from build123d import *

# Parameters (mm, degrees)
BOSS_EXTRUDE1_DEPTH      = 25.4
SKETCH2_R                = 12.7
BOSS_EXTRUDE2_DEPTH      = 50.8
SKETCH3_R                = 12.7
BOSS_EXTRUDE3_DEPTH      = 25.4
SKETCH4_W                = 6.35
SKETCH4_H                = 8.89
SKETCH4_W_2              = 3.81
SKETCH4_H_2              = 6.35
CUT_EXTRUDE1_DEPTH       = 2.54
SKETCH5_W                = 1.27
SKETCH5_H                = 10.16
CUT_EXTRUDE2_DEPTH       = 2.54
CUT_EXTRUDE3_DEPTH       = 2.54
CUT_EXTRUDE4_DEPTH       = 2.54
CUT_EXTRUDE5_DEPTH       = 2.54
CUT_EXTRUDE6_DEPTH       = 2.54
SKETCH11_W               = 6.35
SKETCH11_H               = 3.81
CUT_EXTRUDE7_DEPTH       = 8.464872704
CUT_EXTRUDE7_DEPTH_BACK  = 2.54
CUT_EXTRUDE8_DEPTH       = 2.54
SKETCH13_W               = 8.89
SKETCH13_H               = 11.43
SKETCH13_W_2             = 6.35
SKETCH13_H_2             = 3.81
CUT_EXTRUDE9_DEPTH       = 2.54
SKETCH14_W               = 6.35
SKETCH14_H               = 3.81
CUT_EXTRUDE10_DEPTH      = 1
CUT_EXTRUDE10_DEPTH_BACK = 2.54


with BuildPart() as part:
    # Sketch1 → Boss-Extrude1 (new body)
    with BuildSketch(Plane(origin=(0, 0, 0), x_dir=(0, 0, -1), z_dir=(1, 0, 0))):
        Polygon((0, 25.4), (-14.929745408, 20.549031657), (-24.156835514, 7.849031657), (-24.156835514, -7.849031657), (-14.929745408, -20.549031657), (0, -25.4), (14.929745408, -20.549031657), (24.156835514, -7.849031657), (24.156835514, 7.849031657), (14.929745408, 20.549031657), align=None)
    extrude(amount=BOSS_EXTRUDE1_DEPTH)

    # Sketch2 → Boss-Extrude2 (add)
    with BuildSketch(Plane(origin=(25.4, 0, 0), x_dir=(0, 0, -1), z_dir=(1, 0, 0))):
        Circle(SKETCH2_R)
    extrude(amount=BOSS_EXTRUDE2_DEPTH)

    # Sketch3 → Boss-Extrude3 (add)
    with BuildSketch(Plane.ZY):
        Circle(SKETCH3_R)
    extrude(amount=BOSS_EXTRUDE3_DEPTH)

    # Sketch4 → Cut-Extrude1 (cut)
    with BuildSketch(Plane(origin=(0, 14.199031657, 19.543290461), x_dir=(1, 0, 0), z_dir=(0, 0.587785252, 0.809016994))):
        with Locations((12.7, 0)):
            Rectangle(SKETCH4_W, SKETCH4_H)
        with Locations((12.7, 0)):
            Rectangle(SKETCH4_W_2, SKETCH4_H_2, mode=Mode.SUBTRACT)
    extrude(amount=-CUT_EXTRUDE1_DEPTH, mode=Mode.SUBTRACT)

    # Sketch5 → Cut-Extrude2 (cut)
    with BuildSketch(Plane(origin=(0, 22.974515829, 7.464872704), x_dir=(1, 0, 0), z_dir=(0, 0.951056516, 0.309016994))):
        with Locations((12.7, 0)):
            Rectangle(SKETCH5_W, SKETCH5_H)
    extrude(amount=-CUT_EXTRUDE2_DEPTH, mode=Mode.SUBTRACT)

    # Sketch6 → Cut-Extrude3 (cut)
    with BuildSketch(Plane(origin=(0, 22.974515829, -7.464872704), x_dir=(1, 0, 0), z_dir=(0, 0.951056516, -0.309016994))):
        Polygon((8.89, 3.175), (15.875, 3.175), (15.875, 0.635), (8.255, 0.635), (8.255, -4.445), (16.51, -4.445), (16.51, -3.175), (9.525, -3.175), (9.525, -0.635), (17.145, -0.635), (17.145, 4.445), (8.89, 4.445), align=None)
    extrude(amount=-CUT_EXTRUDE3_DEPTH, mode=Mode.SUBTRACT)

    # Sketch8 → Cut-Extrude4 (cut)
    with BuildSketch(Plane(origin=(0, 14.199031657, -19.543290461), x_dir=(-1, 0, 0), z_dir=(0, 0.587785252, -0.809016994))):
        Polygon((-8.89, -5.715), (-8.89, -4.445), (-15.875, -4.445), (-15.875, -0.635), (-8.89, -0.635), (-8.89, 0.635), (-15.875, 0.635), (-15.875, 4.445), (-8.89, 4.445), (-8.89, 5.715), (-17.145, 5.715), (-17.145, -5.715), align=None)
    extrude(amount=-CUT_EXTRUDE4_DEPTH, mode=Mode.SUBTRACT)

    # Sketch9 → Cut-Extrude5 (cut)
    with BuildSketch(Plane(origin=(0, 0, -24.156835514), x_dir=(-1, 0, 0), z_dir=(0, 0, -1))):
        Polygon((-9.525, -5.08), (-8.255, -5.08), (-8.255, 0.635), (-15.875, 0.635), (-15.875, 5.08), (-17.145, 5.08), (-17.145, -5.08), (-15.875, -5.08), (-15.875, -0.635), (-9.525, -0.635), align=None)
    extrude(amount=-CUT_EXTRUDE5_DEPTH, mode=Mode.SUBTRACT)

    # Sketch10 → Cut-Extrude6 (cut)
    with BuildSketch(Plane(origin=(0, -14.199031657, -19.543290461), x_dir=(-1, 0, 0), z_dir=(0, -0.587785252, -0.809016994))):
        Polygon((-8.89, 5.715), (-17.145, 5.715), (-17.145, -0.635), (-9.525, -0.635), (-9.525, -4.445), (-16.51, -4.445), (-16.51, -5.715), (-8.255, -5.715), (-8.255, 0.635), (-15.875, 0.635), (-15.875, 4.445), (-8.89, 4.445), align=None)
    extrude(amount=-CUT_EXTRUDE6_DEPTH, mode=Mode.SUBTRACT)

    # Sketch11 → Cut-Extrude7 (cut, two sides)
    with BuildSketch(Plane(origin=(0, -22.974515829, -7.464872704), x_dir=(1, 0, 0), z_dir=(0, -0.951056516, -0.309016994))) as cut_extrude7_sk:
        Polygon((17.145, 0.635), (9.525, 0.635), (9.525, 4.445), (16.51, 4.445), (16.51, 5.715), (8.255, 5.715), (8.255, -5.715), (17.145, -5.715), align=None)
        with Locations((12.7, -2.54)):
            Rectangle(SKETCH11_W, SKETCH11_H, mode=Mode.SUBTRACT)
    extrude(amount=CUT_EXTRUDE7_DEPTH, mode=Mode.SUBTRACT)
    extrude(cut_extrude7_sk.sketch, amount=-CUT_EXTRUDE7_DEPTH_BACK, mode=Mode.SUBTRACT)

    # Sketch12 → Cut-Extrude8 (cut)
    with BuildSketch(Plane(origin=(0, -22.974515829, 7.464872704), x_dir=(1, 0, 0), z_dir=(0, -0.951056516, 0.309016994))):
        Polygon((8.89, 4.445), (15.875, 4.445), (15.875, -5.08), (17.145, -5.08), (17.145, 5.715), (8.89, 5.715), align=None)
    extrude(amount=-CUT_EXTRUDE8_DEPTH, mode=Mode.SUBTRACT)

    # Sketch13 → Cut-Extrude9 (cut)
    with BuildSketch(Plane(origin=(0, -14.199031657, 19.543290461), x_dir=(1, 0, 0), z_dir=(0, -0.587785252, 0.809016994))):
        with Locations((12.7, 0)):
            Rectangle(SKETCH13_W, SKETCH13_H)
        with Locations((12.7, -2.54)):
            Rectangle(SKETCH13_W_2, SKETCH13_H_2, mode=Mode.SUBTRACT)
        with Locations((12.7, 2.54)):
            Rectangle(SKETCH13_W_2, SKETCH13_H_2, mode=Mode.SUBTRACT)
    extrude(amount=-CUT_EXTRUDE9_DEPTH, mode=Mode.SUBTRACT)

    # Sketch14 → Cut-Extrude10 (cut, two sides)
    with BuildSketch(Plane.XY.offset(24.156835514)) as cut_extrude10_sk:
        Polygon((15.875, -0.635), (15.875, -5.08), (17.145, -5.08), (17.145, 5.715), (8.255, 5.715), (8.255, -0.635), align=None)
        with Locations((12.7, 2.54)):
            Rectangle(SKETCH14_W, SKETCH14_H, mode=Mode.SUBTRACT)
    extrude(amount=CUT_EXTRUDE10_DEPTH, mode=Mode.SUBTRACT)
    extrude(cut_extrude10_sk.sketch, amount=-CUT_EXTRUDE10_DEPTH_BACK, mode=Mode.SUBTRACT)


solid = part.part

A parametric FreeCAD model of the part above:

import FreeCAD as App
import Part
import Sketcher

V = App.Vector
Q = App.Units.Quantity

doc = App.newDocument("Part")
body = doc.addObject("PartDesign::Body", "Body")

sketch1 = doc.addObject("Sketcher::SketchObject", "Sketch")
body.addObject(sketch1)
sketch1.AttachmentSupport = (doc.YZ_Plane, [""])
sketch1.MapMode = "FlatFace"
sketch1.addGeometry([
    Part.LineSegment(V(25, 0, 0), V(21, 15, 0)),
    Part.LineSegment(V(21, 15, 0), V(8, 24, 0)),
    Part.LineSegment(V(8, 24, 0), V(-8, 24, 0)),
    Part.LineSegment(V(-8, 24, 0), V(-21, 15, 0)),
    Part.LineSegment(V(-21, 15, 0), V(-25, 0, 0)),
    Part.LineSegment(V(-25, 0, 0), V(-21, -15, 0)),
    Part.LineSegment(V(-21, -15, 0), V(-8, -24, 0)),
    Part.LineSegment(V(-8, -24, 0), V(8, -24, 0)),
    Part.LineSegment(V(8, -24, 0), V(21, -15, 0)),
    Part.LineSegment(V(21, -15, 0), V(25, 0, 0)),
], False)
sketch1.addConstraint([
    Sketcher.Constraint("Coincident", 0, 2, 1, 1),
    Sketcher.Constraint("Coincident", 1, 2, 2, 1),
    Sketcher.Constraint("Coincident", 2, 2, 3, 1),
    Sketcher.Constraint("Coincident", 3, 2, 4, 1),
    Sketcher.Constraint("Coincident", 4, 2, 5, 1),
    Sketcher.Constraint("Coincident", 5, 2, 6, 1),
    Sketcher.Constraint("Coincident", 6, 2, 7, 1),
    Sketcher.Constraint("Coincident", 7, 2, 8, 1),
    Sketcher.Constraint("Coincident", 8, 2, 9, 1),
    Sketcher.Constraint("Coincident", 9, 2, 0, 1),
    Sketcher.Constraint("Horizontal", 2),
    Sketcher.Constraint("Horizontal", 7),
    Sketcher.Constraint("Symmetric", 0, 2, 5, 2, -1, 1),
    Sketcher.Constraint("Symmetric", 1, 2, 6, 2, -1, 1),
    Sketcher.Constraint("Symmetric", 3, 2, 8, 2, -1, 1),
    Sketcher.Constraint("Symmetric", 4, 2, 9, 2, -1, 1),
    Sketcher.Constraint("Symmetric", 0, 2, 3, 2, -2),
    Sketcher.Constraint("PointOnObject", 4, 2, -1),
    Sketcher.Constraint("Parallel", 3, 8),
    Sketcher.Constraint("Vertical", 2, 2, 6, 2),
    Sketcher.Constraint("Equal", 0, 1),
    Sketcher.Constraint("DistanceX", 4, 2, -1, 1, Q("1 in")),
    Sketcher.Constraint("Angle", 0, Q("108 deg")),
    Sketcher.Constraint("Angle", 1, Q("144 deg")),
    Sketcher.Constraint("DistanceX", 1, 2, 0, 2, Q("0.5 in")),
])
pad1 = doc.addObject("PartDesign::Pad", "Pad")
body.addObject(pad1)
pad1.Profile = sketch1
pad1.Length = Q("1 in")

sketch2 = doc.addObject("Sketcher::SketchObject", "Sketch001")
body.addObject(sketch2)
sketch2.AttachmentSupport = (doc.YZ_Plane, [""])
sketch2.MapMode = "FlatFace"
sketch2.AttachmentOffset = App.Placement(V(0, 0, 1 * 25.4), App.Rotation())
sketch2.addGeometry(Part.Circle(V(0, 0, 0), V(0, 0, 1), 13), False)
sketch2.addConstraint([
    Sketcher.Constraint("Coincident", 0, 3, -1, 1),
    Sketcher.Constraint("Diameter", 0, Q("1 in")),
])
pad2 = doc.addObject("PartDesign::Pad", "Pad001")
body.addObject(pad2)
pad2.Profile = sketch2
pad2.Length = Q("2 in")

sketch3 = doc.addObject("Sketcher::SketchObject", "Sketch002")
body.addObject(sketch3)
sketch3.AttachmentSupport = (doc.YZ_Plane, [""])
sketch3.MapMode = "FlatFace"
sketch3.addGeometry(Part.Circle(V(0, 0, 0), V(0, 0, 1), 13), False)
sketch3.addConstraint([
    Sketcher.Constraint("Coincident", 0, 3, -1, 1),
    Sketcher.Constraint("Diameter", 0, Q("1 in")),
])
pad3 = doc.addObject("PartDesign::Pad", "Pad002")
body.addObject(pad3)
pad3.Profile = sketch3
pad3.Length = Q("1 in")
pad3.Reversed = True

sketch4 = doc.addObject("Sketcher::SketchObject", "Sketch003")
body.addObject(sketch4)
sketch4.Placement = App.Placement(V(0, 14.199032, 19.54329), App.Rotation(V(1, 0, 0), V(0, 0.809016994, -0.587785252), V(0, 0.587785252, 0.809016994), "ZXY"))
sketch4.addGeometry([
    Part.LineSegment(V(9.5, 4.4, 0), V(9.5, -4.4, 0)),
    Part.LineSegment(V(9.5, -4.4, 0), V(15.9, -4.4, 0)),
    Part.LineSegment(V(15.9, -4.4, 0), V(15.9, 4.4, 0)),
    Part.LineSegment(V(15.9, 4.4, 0), V(9.5, 4.4, 0)),
    Part.LineSegment(V(14.6, -3.2, 0), V(10.8, -3.2, 0)),
    Part.LineSegment(V(10.8, -3.2, 0), V(10.8, 3.2, 0)),
    Part.LineSegment(V(10.8, 3.2, 0), V(14.6, 3.2, 0)),
    Part.LineSegment(V(14.6, 3.2, 0), V(14.6, -3.2, 0)),
], False)
sketch4.addConstraint([
    Sketcher.Constraint("Coincident", 0, 2, 1, 1),
    Sketcher.Constraint("Coincident", 1, 2, 2, 1),
    Sketcher.Constraint("Coincident", 2, 2, 3, 1),
    Sketcher.Constraint("Coincident", 3, 2, 0, 1),
    Sketcher.Constraint("Coincident", 4, 2, 5, 1),
    Sketcher.Constraint("Coincident", 5, 2, 6, 1),
    Sketcher.Constraint("Coincident", 6, 2, 7, 1),
    Sketcher.Constraint("Coincident", 7, 2, 4, 1),
    Sketcher.Constraint("Vertical", 0),
    Sketcher.Constraint("Horizontal", 1),
    Sketcher.Constraint("Vertical", 2),
    Sketcher.Constraint("Horizontal", 3),
    Sketcher.Constraint("Horizontal", 4),
    Sketcher.Constraint("Vertical", 5),
    Sketcher.Constraint("Horizontal", 6),
    Sketcher.Constraint("Vertical", 7),
    Sketcher.Constraint("Equal", 3, 5),
    Sketcher.Constraint("DistanceX", 1, 1, 1, 2, Q("0.25 in")),
    Sketcher.Constraint("DistanceX", 4, 2, 4, 1, Q("0.15 in")),
    Sketcher.Constraint("DistanceY", 0, 2, 0, 1, Q("0.35 in")),
    Sketcher.Constraint("DistanceX", 4, 2, 1, 2, Q("0.2 in")),
    Sketcher.Constraint("DistanceY", 4, 2, 3, 2, Q("0.3 in")),
    Sketcher.Constraint("DistanceX", -1, 1, 0, 2, Q("0.375 in")),
    Sketcher.Constraint("DistanceY", 0, 2, -1, 1, Q("0.175 in")),
])
pocket1 = doc.addObject("PartDesign::Pocket", "Pocket")
body.addObject(pocket1)
pocket1.Profile = sketch4
pocket1.Length = Q("0.1 in")

sketch5 = doc.addObject("Sketcher::SketchObject", "Sketch004")
body.addObject(sketch5)
sketch5.Placement = App.Placement(V(0, 22.974516, 7.464873), App.Rotation(V(1, 0, 0), V(0, 0.309016994, -0.951056516), V(0, 0.951056516, 0.309016994), "ZXY"))
sketch5.addGeometry([
    Part.LineSegment(V(12.1, 5.1, 0), V(12.1, -5.1, 0)),
    Part.LineSegment(V(12.1, -5.1, 0), V(13.3, -5.1, 0)),
    Part.LineSegment(V(13.3, -5.1, 0), V(13.3, 5.1, 0)),
    Part.LineSegment(V(13.3, 5.1, 0), V(12.1, 5.1, 0)),
], False)
sketch5.addConstraint([
    Sketcher.Constraint("Coincident", 0, 2, 1, 1),
    Sketcher.Constraint("Coincident", 1, 2, 2, 1),
    Sketcher.Constraint("Coincident", 2, 2, 3, 1),
    Sketcher.Constraint("Coincident", 3, 2, 0, 1),
    Sketcher.Constraint("Vertical", 0),
    Sketcher.Constraint("Horizontal", 1),
    Sketcher.Constraint("Vertical", 2),
    Sketcher.Constraint("Horizontal", 3),
    Sketcher.Constraint("DistanceY", 0, 2, 0, 1, Q("0.4 in")),
    Sketcher.Constraint("DistanceX", 1, 1, 1, 2, Q("0.05 in")),
    Sketcher.Constraint("DistanceY", 0, 2, -1, 1, Q("0.2 in")),
    Sketcher.Constraint("DistanceX", -1, 1, 0, 2, Q("0.475 in")),
])
pocket2 = doc.addObject("PartDesign::Pocket", "Pocket001")
body.addObject(pocket2)
pocket2.Profile = sketch5
pocket2.Length = Q("0.1 in")

sketch6 = doc.addObject("Sketcher::SketchObject", "Sketch005")
body.addObject(sketch6)
sketch6.Placement = App.Placement(V(0, 22.974516, -7.464873), App.Rotation(V(1, 0, 0), V(0, -0.309016994, -0.951056516), V(0, 0.951056516, -0.309016994), "ZXY"))
sketch6.addGeometry([
    Part.LineSegment(V(8.9, 3.2, 0), V(15.9, 3.2, 0)),
    Part.LineSegment(V(15.9, 3.2, 0), V(15.9, 0.6, 0)),
    Part.LineSegment(V(15.9, 0.6, 0), V(8.3, 0.6, 0)),
    Part.LineSegment(V(8.3, 0.6, 0), V(8.3, -4.4, 0)),
    Part.LineSegment(V(8.3, -4.4, 0), V(16.5, -4.4, 0)),
    Part.LineSegment(V(16.5, -4.4, 0), V(16.5, -3.2, 0)),
    Part.LineSegment(V(16.5, -3.2, 0), V(9.5, -3.2, 0)),
    Part.LineSegment(V(9.5, -3.2, 0), V(9.5, -0.6, 0)),
    Part.LineSegment(V(9.5, -0.6, 0), V(17.1, -0.6, 0)),
    Part.LineSegment(V(17.1, -0.6, 0), V(17.1, 4.4, 0)),
    Part.LineSegment(V(17.1, 4.4, 0), V(8.9, 4.4, 0)),
    Part.LineSegment(V(8.9, 4.4, 0), V(8.9, 3.2, 0)),
], False)
sketch6.addConstraint([
    Sketcher.Constraint("Coincident", 0, 2, 1, 1),
    Sketcher.Constraint("Coincident", 1, 2, 2, 1),
    Sketcher.Constraint("Coincident", 2, 2, 3, 1),
    Sketcher.Constraint("Coincident", 3, 2, 4, 1),
    Sketcher.Constraint("Coincident", 4, 2, 5, 1),
    Sketcher.Constraint("Coincident", 5, 2, 6, 1),
    Sketcher.Constraint("Coincident", 6, 2, 7, 1),
    Sketcher.Constraint("Coincident", 7, 2, 8, 1),
    Sketcher.Constraint("Coincident", 8, 2, 9, 1),
    Sketcher.Constraint("Coincident", 9, 2, 10, 1),
    Sketcher.Constraint("Coincident", 10, 2, 11, 1),
    Sketcher.Constraint("Coincident", 11, 2, 0, 1),
    Sketcher.Constraint("Horizontal", 0),
    Sketcher.Constraint("Vertical", 1),
    Sketcher.Constraint("Horizontal", 2),
    Sketcher.Constraint("Vertical", 3),
    Sketcher.Constraint("Horizontal", 4),
    Sketcher.Constraint("Vertical", 5),
    Sketcher.Constraint("Horizontal", 6),
    Sketcher.Constraint("Vertical", 7),
    Sketcher.Constraint("Horizontal", 8),
    Sketcher.Constraint("Vertical", 9),
    Sketcher.Constraint("Horizontal", 10),
    Sketcher.Constraint("Vertical", 11),
    Sketcher.Constraint("Equal", 0, 6),
    Sketcher.Constraint("Equal", 2, 8),
    Sketcher.Constraint("Equal", 1, 7),
    Sketcher.Constraint("Equal", 3, 9),
    Sketcher.Constraint("DistanceX", 2, 2, 2, 1, Q("0.3 in")),
    Sketcher.Constraint("DistanceY", 1, 2, 1, 1, Q("0.1 in")),
    Sketcher.Constraint("DistanceY", 3, 2, 3, 1, Q("0.2 in")),
    Sketcher.Constraint("DistanceY", 5, 1, 5, 2, Q("0.05 in")),
    Sketcher.Constraint("DistanceX", 0, 1, 0, 2, Q("0.275 in")),
    Sketcher.Constraint("DistanceX", 4, 1, 4, 2, Q("0.325 in")),
    Sketcher.Constraint("DistanceX", -1, 1, 4, 2, Q("0.65 in")),
    Sketcher.Constraint("DistanceY", -1, 1, 0, 2, Q("0.125 in")),
])
pocket3 = doc.addObject("PartDesign::Pocket", "Pocket002")
body.addObject(pocket3)
pocket3.Profile = sketch6
pocket3.Length = Q("0.1 in")

sketch7 = doc.addObject("Sketcher::SketchObject", "Sketch006")
body.addObject(sketch7)
sketch7.Placement = App.Placement(V(0, 14.199032, -19.54329), App.Rotation(V(-1, 0, 0), V(0, 0.809016994, 0.587785252), V(0, 0.587785252, -0.809016994), "ZXY"))
sketch7.addGeometry([
    Part.LineSegment(V(-8.9, -5.7, 0), V(-8.9, -4.4, 0)),
    Part.LineSegment(V(-8.9, -4.4, 0), V(-15.9, -4.4, 0)),
    Part.LineSegment(V(-15.9, -4.4, 0), V(-15.9, -0.6, 0)),
    Part.LineSegment(V(-15.9, -0.6, 0), V(-8.9, -0.6, 0)),
    Part.LineSegment(V(-8.9, -0.6, 0), V(-8.9, 0.6, 0)),
    Part.LineSegment(V(-8.9, 0.6, 0), V(-15.9, 0.6, 0)),
    Part.LineSegment(V(-15.9, 0.6, 0), V(-15.9, 4.4, 0)),
    Part.LineSegment(V(-15.9, 4.4, 0), V(-8.9, 4.4, 0)),
    Part.LineSegment(V(-8.9, 4.4, 0), V(-8.9, 5.7, 0)),
    Part.LineSegment(V(-8.9, 5.7, 0), V(-17.1, 5.7, 0)),
    Part.LineSegment(V(-17.1, 5.7, 0), V(-17.1, -5.7, 0)),
    Part.LineSegment(V(-17.1, -5.7, 0), V(-8.9, -5.7, 0)),
], False)
sketch7.addConstraint([
    Sketcher.Constraint("Coincident", 0, 2, 1, 1),
    Sketcher.Constraint("Coincident", 1, 2, 2, 1),
    Sketcher.Constraint("Coincident", 2, 2, 3, 1),
    Sketcher.Constraint("Coincident", 3, 2, 4, 1),
    Sketcher.Constraint("Coincident", 4, 2, 5, 1),
    Sketcher.Constraint("Coincident", 5, 2, 6, 1),
    Sketcher.Constraint("Coincident", 6, 2, 7, 1),
    Sketcher.Constraint("Coincident", 7, 2, 8, 1),
    Sketcher.Constraint("Coincident", 8, 2, 9, 1),
    Sketcher.Constraint("Coincident", 9, 2, 10, 1),
    Sketcher.Constraint("Coincident", 10, 2, 11, 1),
    Sketcher.Constraint("Coincident", 11, 2, 0, 1),
    Sketcher.Constraint("Vertical", 0),
    Sketcher.Constraint("Horizontal", 1),
    Sketcher.Constraint("Vertical", 2),
    Sketcher.Constraint("Horizontal", 3),
    Sketcher.Constraint("Vertical", 4),
    Sketcher.Constraint("Horizontal", 5),
    Sketcher.Constraint("Vertical", 6),
    Sketcher.Constraint("Horizontal", 7),
    Sketcher.Constraint("Vertical", 8),
    Sketcher.Constraint("Horizontal", 9),
    Sketcher.Constraint("Vertical", 10),
    Sketcher.Constraint("Horizontal", 11),
    Sketcher.Constraint("Symmetric", 2, 2, 5, 2, -1),
    Sketcher.Constraint("Symmetric", 0, 2, 7, 2, -1),
    Sketcher.Constraint("Vertical", 0, 2, 3, 2),
    Sketcher.Constraint("Equal", 0, 4),
    Sketcher.Constraint("Equal", 4, 8),
    Sketcher.Constraint("DistanceY", 0, 1, 0, 2, Q("0.05 in")),
    Sketcher.Constraint("DistanceY", 2, 1, 2, 2, Q("0.15 in")),
    Sketcher.Constraint("DistanceX", 1, 2, 1, 1, Q("0.275 in")),
    Sketcher.Constraint("DistanceX", 9, 2, 9, 1, Q("0.325 in")),
    Sketcher.Constraint("DistanceX", 0, 2, -1, 1, Q("0.35 in")),
])
pocket4 = doc.addObject("PartDesign::Pocket", "Pocket003")
body.addObject(pocket4)
pocket4.Profile = sketch7
pocket4.Length = Q("0.1 in")

sketch8 = doc.addObject("Sketcher::SketchObject", "Sketch007")
body.addObject(sketch8)
sketch8.AttachmentSupport = (doc.XY_Plane, [""])
sketch8.MapMode = "FlatFace"
sketch8.AttachmentOffset = App.Placement(V(0, 0, -24.156836), App.Rotation())
sketch8.addGeometry([
    Part.LineSegment(V(9.5, -5.1, 0), V(8.3, -5.1, 0)),
    Part.LineSegment(V(8.3, -5.1, 0), V(8.3, 0.6, 0)),
    Part.LineSegment(V(8.3, 0.6, 0), V(15.9, 0.6, 0)),
    Part.LineSegment(V(15.9, 0.6, 0), V(15.9, 5.1, 0)),
    Part.LineSegment(V(15.9, 5.1, 0), V(17.1, 5.1, 0)),
    Part.LineSegment(V(17.1, 5.1, 0), V(17.1, -5.1, 0)),
    Part.LineSegment(V(17.1, -5.1, 0), V(15.9, -5.1, 0)),
    Part.LineSegment(V(15.9, -5.1, 0), V(15.9, -0.6, 0)),
    Part.LineSegment(V(15.9, -0.6, 0), V(9.5, -0.6, 0)),
    Part.LineSegment(V(9.5, -0.6, 0), V(9.5, -5.1, 0)),
], False)
sketch8.addConstraint([
    Sketcher.Constraint("Coincident", 0, 2, 1, 1),
    Sketcher.Constraint("Coincident", 1, 2, 2, 1),
    Sketcher.Constraint("Coincident", 2, 2, 3, 1),
    Sketcher.Constraint("Coincident", 3, 2, 4, 1),
    Sketcher.Constraint("Coincident", 4, 2, 5, 1),
    Sketcher.Constraint("Coincident", 5, 2, 6, 1),
    Sketcher.Constraint("Coincident", 6, 2, 7, 1),
    Sketcher.Constraint("Coincident", 7, 2, 8, 1),
    Sketcher.Constraint("Coincident", 8, 2, 9, 1),
    Sketcher.Constraint("Coincident", 9, 2, 0, 1),
    Sketcher.Constraint("Horizontal", 0),
    Sketcher.Constraint("Vertical", 1),
    Sketcher.Constraint("Horizontal", 2),
    Sketcher.Constraint("Vertical", 3),
    Sketcher.Constraint("Horizontal", 4),
    Sketcher.Constraint("Vertical", 5),
    Sketcher.Constraint("Horizontal", 6),
    Sketcher.Constraint("Vertical", 7),
    Sketcher.Constraint("Horizontal", 8),
    Sketcher.Constraint("Vertical", 9),
    Sketcher.Constraint("Symmetric", 3, 2, 6, 2, -1),
    Sketcher.Constraint("Horizontal", 0, 2, 5, 2),
    Sketcher.Constraint("Equal", 0, 4),
    Sketcher.Constraint("Equal", 3, 7),
    Sketcher.Constraint("DistanceX", 2, 1, 2, 2, Q("0.3 in")),
    Sketcher.Constraint("DistanceY", 5, 2, 5, 1, Q("0.4 in")),
    Sketcher.Constraint("DistanceX", 0, 2, 0, 1, Q("0.05 in")),
    Sketcher.Constraint("DistanceY", 1, 1, 1, 2, Q("0.225 in")),
    Sketcher.Constraint("DistanceX", -1, 1, 0, 2, Q("0.325 in")),
])
pocket5 = doc.addObject("PartDesign::Pocket", "Pocket004")
body.addObject(pocket5)
pocket5.Profile = sketch8
pocket5.Length = Q("0.1 in")
pocket5.Reversed = True

sketch9 = doc.addObject("Sketcher::SketchObject", "Sketch008")
body.addObject(sketch9)
sketch9.Placement = App.Placement(V(0, -14.199032, -19.54329), App.Rotation(V(-1, 0, 0), V(0, 0.809016994, -0.587785252), V(0, -0.587785252, -0.809016994), "ZXY"))
sketch9.addGeometry([
    Part.LineSegment(V(-8.9, 5.7, 0), V(-17.1, 5.7, 0)),
    Part.LineSegment(V(-17.1, 5.7, 0), V(-17.1, -0.6, 0)),
    Part.LineSegment(V(-17.1, -0.6, 0), V(-9.5, -0.6, 0)),
    Part.LineSegment(V(-9.5, -0.6, 0), V(-9.5, -4.4, 0)),
    Part.LineSegment(V(-9.5, -4.4, 0), V(-16.5, -4.4, 0)),
    Part.LineSegment(V(-16.5, -4.4, 0), V(-16.5, -5.7, 0)),
    Part.LineSegment(V(-16.5, -5.7, 0), V(-8.3, -5.7, 0)),
    Part.LineSegment(V(-8.3, -5.7, 0), V(-8.3, 0.6, 0)),
    Part.LineSegment(V(-8.3, 0.6, 0), V(-15.9, 0.6, 0)),
    Part.LineSegment(V(-15.9, 0.6, 0), V(-15.9, 4.4, 0)),
    Part.LineSegment(V(-15.9, 4.4, 0), V(-8.9, 4.4, 0)),
    Part.LineSegment(V(-8.9, 4.4, 0), V(-8.9, 5.7, 0)),
], False)
sketch9.addConstraint([
    Sketcher.Constraint("Coincident", 0, 2, 1, 1),
    Sketcher.Constraint("Coincident", 1, 2, 2, 1),
    Sketcher.Constraint("Coincident", 2, 2, 3, 1),
    Sketcher.Constraint("Coincident", 3, 2, 4, 1),
    Sketcher.Constraint("Coincident", 4, 2, 5, 1),
    Sketcher.Constraint("Coincident", 5, 2, 6, 1),
    Sketcher.Constraint("Coincident", 6, 2, 7, 1),
    Sketcher.Constraint("Coincident", 7, 2, 8, 1),
    Sketcher.Constraint("Coincident", 8, 2, 9, 1),
    Sketcher.Constraint("Coincident", 9, 2, 10, 1),
    Sketcher.Constraint("Coincident", 10, 2, 11, 1),
    Sketcher.Constraint("Coincident", 11, 2, 0, 1),
    Sketcher.Constraint("Horizontal", 0),
    Sketcher.Constraint("Vertical", 1),
    Sketcher.Constraint("Horizontal", 2),
    Sketcher.Constraint("Vertical", 3),
    Sketcher.Constraint("Horizontal", 4),
    Sketcher.Constraint("Vertical", 5),
    Sketcher.Constraint("Horizontal", 6),
    Sketcher.Constraint("Vertical", 7),
    Sketcher.Constraint("Horizontal", 8),
    Sketcher.Constraint("Vertical", 9),
    Sketcher.Constraint("Horizontal", 10),
    Sketcher.Constraint("Vertical", 11),
    Sketcher.Constraint("Equal", 0, 6),
    Sketcher.Constraint("Equal", 2, 8),
    Sketcher.Constraint("Equal", 1, 7),
    Sketcher.Constraint("Equal", 3, 9),
    Sketcher.Constraint("DistanceX", 2, 1, 2, 2, Q("0.3 in")),
    Sketcher.Constraint("DistanceY", 1, 2, 1, 1, Q("0.25 in")),
    Sketcher.Constraint("DistanceY", 3, 2, 3, 1, Q("0.15 in")),
    Sketcher.Constraint("DistanceY", 5, 2, 5, 1, Q("0.05 in")),
    Sketcher.Constraint("DistanceX", 0, 2, 0, 1, Q("0.325 in")),
    Sketcher.Constraint("DistanceX", 4, 2, 4, 1, Q("0.275 in")),
    Sketcher.Constraint("DistanceX", 4, 2, -1, 1, Q("0.65 in")),
    Sketcher.Constraint("DistanceY", -1, 1, 0, 2, Q("0.225 in")),
])
pocket6 = doc.addObject("PartDesign::Pocket", "Pocket005")
body.addObject(pocket6)
pocket6.Profile = sketch9
pocket6.Length = Q("0.1 in")

sketch10 = doc.addObject("Sketcher::SketchObject", "Sketch009")
body.addObject(sketch10)
sketch10.Placement = App.Placement(V(0, -22.974516, -7.464873), App.Rotation(V(1, 0, 0), V(0, -0.309016994, 0.951056516), V(0, -0.951056516, -0.309016994), "ZXY"))
sketch10.addGeometry([
    Part.LineSegment(V(17.1, 0.6, 0), V(9.5, 0.6, 0)),
    Part.LineSegment(V(9.5, 0.6, 0), V(9.5, 4.4, 0)),
    Part.LineSegment(V(9.5, 4.4, 0), V(16.5, 4.4, 0)),
    Part.LineSegment(V(16.5, 4.4, 0), V(16.5, 5.7, 0)),
    Part.LineSegment(V(16.5, 5.7, 0), V(8.3, 5.7, 0)),
    Part.LineSegment(V(8.3, 5.7, 0), V(8.3, -5.7, 0)),
    Part.LineSegment(V(8.3, -5.7, 0), V(17.1, -5.7, 0)),
    Part.LineSegment(V(17.1, -5.7, 0), V(17.1, 0.6, 0)),
    Part.LineSegment(V(15.9, -4.4, 0), V(9.5, -4.4, 0)),
    Part.LineSegment(V(9.5, -4.4, 0), V(9.5, -0.6, 0)),
    Part.LineSegment(V(9.5, -0.6, 0), V(15.9, -0.6, 0)),
    Part.LineSegment(V(15.9, -0.6, 0), V(15.9, -4.4, 0)),
], False)
sketch10.addConstraint([
    Sketcher.Constraint("Coincident", 0, 2, 1, 1),
    Sketcher.Constraint("Coincident", 1, 2, 2, 1),
    Sketcher.Constraint("Coincident", 2, 2, 3, 1),
    Sketcher.Constraint("Coincident", 3, 2, 4, 1),
    Sketcher.Constraint("Coincident", 4, 2, 5, 1),
    Sketcher.Constraint("Coincident", 5, 2, 6, 1),
    Sketcher.Constraint("Coincident", 6, 2, 7, 1),
    Sketcher.Constraint("Coincident", 7, 2, 0, 1),
    Sketcher.Constraint("Coincident", 8, 2, 9, 1),
    Sketcher.Constraint("Coincident", 9, 2, 10, 1),
    Sketcher.Constraint("Coincident", 10, 2, 11, 1),
    Sketcher.Constraint("Coincident", 11, 2, 8, 1),
    Sketcher.Constraint("Horizontal", 0),
    Sketcher.Constraint("Vertical", 1),
    Sketcher.Constraint("Horizontal", 2),
    Sketcher.Constraint("Vertical", 3),
    Sketcher.Constraint("Horizontal", 4),
    Sketcher.Constraint("Vertical", 5),
    Sketcher.Constraint("Horizontal", 6),
    Sketcher.Constraint("Vertical", 7),
    Sketcher.Constraint("Horizontal", 8),
    Sketcher.Constraint("Vertical", 9),
    Sketcher.Constraint("Horizontal", 10),
    Sketcher.Constraint("Vertical", 11),
    Sketcher.Constraint("Symmetric", 1, 2, 8, 2, -1),
    Sketcher.Constraint("Equal", 10, 7),
    Sketcher.Constraint("Equal", 1, 9),
    Sketcher.Constraint("DistanceX", 0, 2, 0, 1, Q("0.3 in")),
    Sketcher.Constraint("DistanceX", 6, 1, 6, 2, Q("0.35 in")),
    Sketcher.Constraint("DistanceX", 8, 2, 8, 1, Q("0.25 in")),
    Sketcher.Constraint("DistanceY", 1, 1, 1, 2, Q("0.15 in")),
    Sketcher.Constraint("DistanceY", 3, 1, 3, 2, Q("0.05 in")),
    Sketcher.Constraint("DistanceY", 8, 2, 0, 2, Q("0.2 in")),
    Sketcher.Constraint("DistanceX", 2, 1, 2, 2, Q("0.275 in")),
    Sketcher.Constraint("DistanceX", -1, 1, 2, 2, Q("0.65 in")),
])
pocket7 = doc.addObject("PartDesign::Pocket", "Pocket006")
body.addObject(pocket7)
pocket7.Profile = sketch10
pocket7.Type = "TwoLengths"
pocket7.Length = 8.464873
pocket7.Length2 = Q("0.1 in")
pocket7.Reversed = True

sketch11 = doc.addObject("Sketcher::SketchObject", "Sketch010")
body.addObject(sketch11)
sketch11.Placement = App.Placement(V(0, -22.974516, 7.464873), App.Rotation(V(1, 0, 0), V(0, 0.309016994, 0.951056516), V(0, -0.951056516, 0.309016994), "ZXY"))
sketch11.addGeometry([
    Part.LineSegment(V(8.9, 4.4, 0), V(15.9, 4.4, 0)),
    Part.LineSegment(V(15.9, 4.4, 0), V(15.9, -5.1, 0)),
    Part.LineSegment(V(15.9, -5.1, 0), V(17.1, -5.1, 0)),
    Part.LineSegment(V(17.1, -5.1, 0), V(17.1, 5.7, 0)),
    Part.LineSegment(V(17.1, 5.7, 0), V(8.9, 5.7, 0)),
    Part.LineSegment(V(8.9, 5.7, 0), V(8.9, 4.4, 0)),
], False)
sketch11.addConstraint([
    Sketcher.Constraint("Coincident", 0, 2, 1, 1),
    Sketcher.Constraint("Coincident", 1, 2, 2, 1),
    Sketcher.Constraint("Coincident", 2, 2, 3, 1),
    Sketcher.Constraint("Coincident", 3, 2, 4, 1),
    Sketcher.Constraint("Coincident", 4, 2, 5, 1),
    Sketcher.Constraint("Coincident", 5, 2, 0, 1),
    Sketcher.Constraint("Horizontal", 0),
    Sketcher.Constraint("Vertical", 1),
    Sketcher.Constraint("Horizontal", 2),
    Sketcher.Constraint("Vertical", 3),
    Sketcher.Constraint("Horizontal", 4),
    Sketcher.Constraint("Vertical", 5),
    Sketcher.Constraint("Equal", 2, 5),
    Sketcher.Constraint("DistanceX", 2, 1, 2, 2, Q("0.05 in")),
    Sketcher.Constraint("DistanceY", 1, 2, -1, 1, Q("0.2 in")),
    Sketcher.Constraint("DistanceX", 0, 1, 0, 2, Q("0.275 in")),
    Sketcher.Constraint("DistanceY", 1, 2, 1, 1, Q("0.375 in")),
    Sketcher.Constraint("DistanceX", -1, 1, 4, 2, Q("0.35 in")),
])
pocket8 = doc.addObject("PartDesign::Pocket", "Pocket007")
body.addObject(pocket8)
pocket8.Profile = sketch11
pocket8.Length = Q("0.1 in")

sketch12 = doc.addObject("Sketcher::SketchObject", "Sketch011")
body.addObject(sketch12)
sketch12.Placement = App.Placement(V(0, -14.199032, 19.54329), App.Rotation(V(1, 0, 0), V(0, 0.809016994, 0.587785252), V(0, -0.587785252, 0.809016994), "ZXY"))
sketch12.addGeometry([
    Part.LineSegment(V(8.3, 5.7, 0), V(8.3, -5.7, 0)),
    Part.LineSegment(V(8.3, -5.7, 0), V(17.1, -5.7, 0)),
    Part.LineSegment(V(17.1, -5.7, 0), V(17.1, 5.7, 0)),
    Part.LineSegment(V(17.1, 5.7, 0), V(8.3, 5.7, 0)),
    Part.LineSegment(V(15.9, -4.4, 0), V(9.5, -4.4, 0)),
    Part.LineSegment(V(9.5, -4.4, 0), V(9.5, -0.6, 0)),
    Part.LineSegment(V(9.5, -0.6, 0), V(15.9, -0.6, 0)),
    Part.LineSegment(V(15.9, -0.6, 0), V(15.9, -4.4, 0)),
    Part.LineSegment(V(15.9, 0.6, 0), V(9.5, 0.6, 0)),
    Part.LineSegment(V(9.5, 0.6, 0), V(9.5, 4.4, 0)),
    Part.LineSegment(V(9.5, 4.4, 0), V(15.9, 4.4, 0)),
    Part.LineSegment(V(15.9, 4.4, 0), V(15.9, 0.6, 0)),
], False)
sketch12.addConstraint([
    Sketcher.Constraint("Coincident", 0, 2, 1, 1),
    Sketcher.Constraint("Coincident", 1, 2, 2, 1),
    Sketcher.Constraint("Coincident", 2, 2, 3, 1),
    Sketcher.Constraint("Coincident", 3, 2, 0, 1),
    Sketcher.Constraint("Coincident", 4, 2, 5, 1),
    Sketcher.Constraint("Coincident", 5, 2, 6, 1),
    Sketcher.Constraint("Coincident", 6, 2, 7, 1),
    Sketcher.Constraint("Coincident", 7, 2, 4, 1),
    Sketcher.Constraint("Coincident", 8, 2, 9, 1),
    Sketcher.Constraint("Coincident", 9, 2, 10, 1),
    Sketcher.Constraint("Coincident", 10, 2, 11, 1),
    Sketcher.Constraint("Coincident", 11, 2, 8, 1),
    Sketcher.Constraint("Vertical", 0),
    Sketcher.Constraint("Horizontal", 1),
    Sketcher.Constraint("Vertical", 2),
    Sketcher.Constraint("Horizontal", 3),
    Sketcher.Constraint("Horizontal", 4),
    Sketcher.Constraint("Vertical", 5),
    Sketcher.Constraint("Horizontal", 6),
    Sketcher.Constraint("Vertical", 7),
    Sketcher.Constraint("Horizontal", 8),
    Sketcher.Constraint("Vertical", 9),
    Sketcher.Constraint("Horizontal", 10),
    Sketcher.Constraint("Vertical", 11),
    Sketcher.Constraint("Symmetric", 5, 2, 8, 2, -1),
    Sketcher.Constraint("Symmetric", 7, 2, 10, 2, -1),
    Sketcher.Constraint("DistanceX", 1, 1, 1, 2, Q("0.35 in")),
    Sketcher.Constraint("DistanceX", 4, 2, 4, 1, Q("0.25 in")),
    Sketcher.Constraint("DistanceY", 0, 2, 0, 1, Q("0.45 in")),
    Sketcher.Constraint("DistanceY", 5, 1, 5, 2, Q("0.15 in")),
    Sketcher.Constraint("DistanceX", 4, 2, 1, 2, Q("0.3 in")),
    Sketcher.Constraint("DistanceY", 4, 2, 3, 2, Q("0.4 in")),
    Sketcher.Constraint("DistanceY", 4, 2, 8, 2, Q("0.2 in")),
    Sketcher.Constraint("DistanceX", -1, 1, 0, 2, Q("0.325 in")),
])
pocket9 = doc.addObject("PartDesign::Pocket", "Pocket008")
body.addObject(pocket9)
pocket9.Profile = sketch12
pocket9.Length = Q("0.1 in")

sketch13 = doc.addObject("Sketcher::SketchObject", "Sketch012")
body.addObject(sketch13)
sketch13.AttachmentSupport = (doc.XY_Plane, [""])
sketch13.MapMode = "FlatFace"
sketch13.AttachmentOffset = App.Placement(V(0, 0, 24.156836), App.Rotation())
sketch13.addGeometry([
    Part.LineSegment(V(15.9, -0.6, 0), V(15.9, -5.1, 0)),
    Part.LineSegment(V(15.9, -5.1, 0), V(17.1, -5.1, 0)),
    Part.LineSegment(V(17.1, -5.1, 0), V(17.1, 5.7, 0)),
    Part.LineSegment(V(17.1, 5.7, 0), V(8.3, 5.7, 0)),
    Part.LineSegment(V(8.3, 5.7, 0), V(8.3, -0.6, 0)),
    Part.LineSegment(V(8.3, -0.6, 0), V(15.9, -0.6, 0)),
    Part.LineSegment(V(15.9, 0.6, 0), V(9.5, 0.6, 0)),
    Part.LineSegment(V(9.5, 0.6, 0), V(9.5, 4.4, 0)),
    Part.LineSegment(V(9.5, 4.4, 0), V(15.9, 4.4, 0)),
    Part.LineSegment(V(15.9, 4.4, 0), V(15.9, 0.6, 0)),
], False)
sketch13.addConstraint([
    Sketcher.Constraint("Coincident", 0, 2, 1, 1),
    Sketcher.Constraint("Coincident", 1, 2, 2, 1),
    Sketcher.Constraint("Coincident", 2, 2, 3, 1),
    Sketcher.Constraint("Coincident", 3, 2, 4, 1),
    Sketcher.Constraint("Coincident", 4, 2, 5, 1),
    Sketcher.Constraint("Coincident", 5, 2, 0, 1),
    Sketcher.Constraint("Coincident", 6, 2, 7, 1),
    Sketcher.Constraint("Coincident", 7, 2, 8, 1),
    Sketcher.Constraint("Coincident", 8, 2, 9, 1),
    Sketcher.Constraint("Coincident", 9, 2, 6, 1),
    Sketcher.Constraint("Vertical", 0),
    Sketcher.Constraint("Horizontal", 1),
    Sketcher.Constraint("Vertical", 2),
    Sketcher.Constraint("Horizontal", 3),
    Sketcher.Constraint("Vertical", 4),
    Sketcher.Constraint("Horizontal", 5),
    Sketcher.Constraint("Horizontal", 6),
    Sketcher.Constraint("Vertical", 7),
    Sketcher.Constraint("Horizontal", 8),
    Sketcher.Constraint("Vertical", 9),
    Sketcher.Constraint("Symmetric", 5, 2, 9, 2, -1),
    Sketcher.Constraint("Equal", 8, 4),
    Sketcher.Constraint("DistanceX", 5, 1, 5, 2, Q("0.3 in")),
    Sketcher.Constraint("DistanceX", 1, 1, 1, 2, Q("0.05 in")),
    Sketcher.Constraint("DistanceX", 6, 2, 6, 1, Q("0.25 in")),
    Sketcher.Constraint("DistanceY", 7, 1, 7, 2, Q("0.15 in")),
    Sketcher.Constraint("DistanceY", 0, 2, -1, 1, Q("0.2 in")),
    Sketcher.Constraint("DistanceY", 6, 2, 3, 2, Q("0.2 in")),
    Sketcher.Constraint("DistanceX", -1, 1, 0, 2, Q("0.625 in")),
])
pocket10 = doc.addObject("PartDesign::Pocket", "Pocket009")
body.addObject(pocket10)
pocket10.Profile = sketch13
pocket10.Type = "TwoLengths"
pocket10.Length = 1
pocket10.Length2 = Q("0.1 in")
pocket10.Reversed = True

doc.recompute()
